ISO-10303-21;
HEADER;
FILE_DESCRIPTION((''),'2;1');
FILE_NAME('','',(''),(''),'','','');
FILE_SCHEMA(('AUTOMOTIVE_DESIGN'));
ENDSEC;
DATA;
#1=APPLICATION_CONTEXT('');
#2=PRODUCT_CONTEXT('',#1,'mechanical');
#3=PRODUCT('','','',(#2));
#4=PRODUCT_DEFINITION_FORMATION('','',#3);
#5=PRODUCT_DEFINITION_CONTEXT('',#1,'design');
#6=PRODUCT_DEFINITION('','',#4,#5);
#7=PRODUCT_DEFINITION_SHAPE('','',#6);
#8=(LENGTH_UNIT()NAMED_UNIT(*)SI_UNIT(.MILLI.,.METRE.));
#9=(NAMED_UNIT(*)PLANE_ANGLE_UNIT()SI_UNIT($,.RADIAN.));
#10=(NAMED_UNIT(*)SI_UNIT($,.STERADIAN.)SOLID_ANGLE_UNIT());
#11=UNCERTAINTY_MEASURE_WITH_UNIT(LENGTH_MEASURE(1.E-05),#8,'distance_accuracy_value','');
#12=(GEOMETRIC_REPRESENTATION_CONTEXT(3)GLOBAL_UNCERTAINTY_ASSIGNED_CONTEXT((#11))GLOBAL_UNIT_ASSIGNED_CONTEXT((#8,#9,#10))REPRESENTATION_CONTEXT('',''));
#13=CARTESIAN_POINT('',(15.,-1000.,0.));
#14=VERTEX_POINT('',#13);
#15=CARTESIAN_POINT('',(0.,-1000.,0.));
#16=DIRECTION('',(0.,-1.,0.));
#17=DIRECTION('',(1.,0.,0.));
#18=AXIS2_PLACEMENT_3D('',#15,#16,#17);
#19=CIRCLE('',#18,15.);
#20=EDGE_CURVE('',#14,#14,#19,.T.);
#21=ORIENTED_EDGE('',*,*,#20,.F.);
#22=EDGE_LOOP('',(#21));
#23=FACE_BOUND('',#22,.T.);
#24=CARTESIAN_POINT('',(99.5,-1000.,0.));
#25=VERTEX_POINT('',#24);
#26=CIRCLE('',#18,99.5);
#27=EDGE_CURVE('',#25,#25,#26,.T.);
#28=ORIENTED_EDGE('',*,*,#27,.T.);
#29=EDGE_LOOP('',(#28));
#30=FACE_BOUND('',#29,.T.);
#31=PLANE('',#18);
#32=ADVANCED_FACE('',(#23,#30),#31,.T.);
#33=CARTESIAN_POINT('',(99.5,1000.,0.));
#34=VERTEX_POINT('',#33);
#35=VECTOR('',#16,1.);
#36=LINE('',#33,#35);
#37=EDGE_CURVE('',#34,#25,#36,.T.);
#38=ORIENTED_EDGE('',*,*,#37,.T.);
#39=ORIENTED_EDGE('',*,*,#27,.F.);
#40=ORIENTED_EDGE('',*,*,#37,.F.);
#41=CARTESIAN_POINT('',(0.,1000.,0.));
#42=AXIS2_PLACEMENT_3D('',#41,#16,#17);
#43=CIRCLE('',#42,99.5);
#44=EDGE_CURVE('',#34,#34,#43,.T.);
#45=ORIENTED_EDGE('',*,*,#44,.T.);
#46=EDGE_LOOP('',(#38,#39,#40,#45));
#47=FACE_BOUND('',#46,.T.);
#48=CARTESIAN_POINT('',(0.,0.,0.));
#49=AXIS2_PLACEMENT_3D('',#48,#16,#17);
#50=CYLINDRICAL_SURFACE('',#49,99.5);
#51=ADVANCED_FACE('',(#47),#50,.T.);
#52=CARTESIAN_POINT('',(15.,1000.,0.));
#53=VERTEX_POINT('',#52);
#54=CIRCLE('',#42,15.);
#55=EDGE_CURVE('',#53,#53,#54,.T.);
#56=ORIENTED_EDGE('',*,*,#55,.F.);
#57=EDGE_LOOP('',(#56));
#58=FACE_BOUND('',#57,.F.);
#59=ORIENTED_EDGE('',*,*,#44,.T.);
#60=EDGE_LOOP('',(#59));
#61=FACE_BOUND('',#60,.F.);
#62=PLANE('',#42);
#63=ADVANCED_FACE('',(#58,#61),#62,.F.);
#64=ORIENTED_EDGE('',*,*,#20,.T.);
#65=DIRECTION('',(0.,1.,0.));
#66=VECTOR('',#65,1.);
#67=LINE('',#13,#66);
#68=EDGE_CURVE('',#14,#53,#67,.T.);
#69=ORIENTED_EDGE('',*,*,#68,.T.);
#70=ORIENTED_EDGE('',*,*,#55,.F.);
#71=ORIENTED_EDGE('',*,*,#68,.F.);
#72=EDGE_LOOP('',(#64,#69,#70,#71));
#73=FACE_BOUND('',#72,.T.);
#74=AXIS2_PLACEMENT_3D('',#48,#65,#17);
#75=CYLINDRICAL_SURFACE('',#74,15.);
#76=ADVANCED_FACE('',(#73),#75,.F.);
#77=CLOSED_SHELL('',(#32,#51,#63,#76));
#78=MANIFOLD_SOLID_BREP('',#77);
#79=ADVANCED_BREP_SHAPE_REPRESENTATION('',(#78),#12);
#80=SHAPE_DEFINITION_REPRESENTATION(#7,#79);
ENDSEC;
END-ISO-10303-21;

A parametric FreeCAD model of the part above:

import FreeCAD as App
import Part
import Sketcher

V = App.Vector
Q = App.Units.Quantity

doc = App.newDocument("Part")
params = doc.addObject("Spreadsheet::Sheet", "Params")
for row, (alias, value) in enumerate([
    ("sketch1_diameter", "199 mm"),
    ("sketch1_diameter2", "30 mm"),
    ("pad1_length", "2000 mm"),
], start=1):
    params.set(f"A{row}", alias)
    params.set(f"B{row}", "=" + value)
    params.setAlias(f"B{row}", alias)

body = doc.addObject("PartDesign::Body", "Body")

# Sketch on XZ plane
sketch1 = body.newObject("Sketcher::SketchObject", "Sketch")
sketch1.AttachmentSupport = (doc.getObject("XZ_Plane"), [""])
sketch1.MapMode = "FlatFace"
sketch1.addGeometry([
    Part.Circle(V(0, 0, 0), V(0, 0, 1), 99.5),
    Part.Circle(V(0, 0, 0), V(0, 0, 1), 15),
], False)
sketch1.addConstraint([
    Sketcher.Constraint("Coincident", 0, 3, -1, 1),
    Sketcher.Constraint("Coincident", 1, 3, -1, 1),
    Sketcher.Constraint("Diameter", 0, Q("199 mm")),
    Sketcher.Constraint("Diameter", 1, Q("30 mm")),
])
sketch1.setExpression("Constraints[2]", "Params.sketch1_diameter")
sketch1.setExpression("Constraints[3]", "Params.sketch1_diameter2")
pad1 = body.newObject("PartDesign::Pad", "Pad")
pad1.Profile = sketch1
pad1.setExpression("Length", "Params.pad1_length")
pad1.Midplane = True

doc.recompute()
